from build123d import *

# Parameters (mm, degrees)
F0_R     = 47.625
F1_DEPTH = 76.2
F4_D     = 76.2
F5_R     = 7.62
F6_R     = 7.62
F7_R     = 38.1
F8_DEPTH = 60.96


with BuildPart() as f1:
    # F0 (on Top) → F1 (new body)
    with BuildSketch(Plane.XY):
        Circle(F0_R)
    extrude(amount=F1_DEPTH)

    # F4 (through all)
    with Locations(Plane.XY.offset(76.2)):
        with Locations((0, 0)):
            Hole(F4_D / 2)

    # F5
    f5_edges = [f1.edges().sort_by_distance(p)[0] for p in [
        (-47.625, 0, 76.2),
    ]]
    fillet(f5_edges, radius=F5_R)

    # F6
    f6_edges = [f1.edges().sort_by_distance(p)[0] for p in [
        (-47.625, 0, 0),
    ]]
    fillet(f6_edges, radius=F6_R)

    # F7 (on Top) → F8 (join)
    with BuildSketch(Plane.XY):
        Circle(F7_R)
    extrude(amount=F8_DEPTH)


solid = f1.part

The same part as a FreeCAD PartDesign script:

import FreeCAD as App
import Part
import Sketcher
Q = App.Units.Quantity


def edges_at(feature, points):
    """Names of the edges that pass closest to the given points."""
    edges = feature.Shape.Edges
    near = lambda p: min(range(len(edges)), key=lambda i: edges[i].distToShape(Part.Vertex(*p))[0])
    return sorted({f"Edge{near(p) + 1}" for p in points})

doc = App.newDocument("Part")
body = doc.addObject("PartDesign::Body", "Body")

# Sketch on XY plane
sketch1 = body.newObject("Sketcher::SketchObject", "Sketch")
sketch1.AttachmentSupport = (doc.getObject("XY_Plane"), [""])
sketch1.MapMode = "FlatFace"
sketch1.addGeometry(Part.Circle(App.Vector(0, 0, 0), App.Vector(0, 0, 1), 47.625), False)
sketch1.addConstraint([
    Sketcher.Constraint("Coincident", 0, 3, -1, 1),
    Sketcher.Constraint("Diameter", 0, Q("3.75 in")),
])
pad1 = body.newObject("PartDesign::Pad", "Pad")
pad1.Profile = sketch1
pad1.Length = Q("3 in")

# Sketch on XY plane
sketch2 = body.newObject("Sketcher::SketchObject", "Sketch001")
sketch2.AttachmentSupport = (doc.getObject("XY_Plane"), [""])
sketch2.MapMode = "FlatFace"
sketch2.AttachmentOffset = App.Placement(App.Vector(0, 0, 3 * 25.4), App.Rotation())
sketch2.addGeometry(Part.Circle(App.Vector(0, 0, 0), App.Vector(0, 0, 1), 38.1), False)
sketch2.addConstraint([
    Sketcher.Constraint("Coincident", 0, 3, -1, 1),
    Sketcher.Constraint("Diameter", 0, Q("3 in")),
])
doc.recompute()
hole = body.newObject("PartDesign::Hole", "Hole")
hole.Profile = sketch2
hole.ThreadType = "None"
hole.Diameter = Q("3 in")
hole.DepthType = "ThroughAll"
doc.recompute()

fillet = body.newObject("PartDesign::Fillet", "Fillet")
fillet.Base = (hole, edges_at(hole, [(-47.625, 0, 76.2)]))
fillet.Radius = Q("0.3 in")
doc.recompute()

fillet2 = body.newObject("PartDesign::Fillet", "Fillet001")
fillet2.Base = (fillet, edges_at(fillet, [(-47.625, 0, 0)]))
fillet2.Radius = Q("0.3 in")

# Sketch on XY plane
sketch3 = body.newObject("Sketcher::SketchObject", "Sketch002")
sketch3.AttachmentSupport = (doc.getObject("XY_Plane"), [""])
sketch3.MapMode = "FlatFace"
sketch3.addGeometry(Part.Circle(App.Vector(0, 0, 0), App.Vector(0, 0, 1), 38.1), False)
sketch3.addConstraint([
    Sketcher.Constraint("Coincident", 0, 3, -1, 1),
    Sketcher.Constraint("Diameter", 0, Q("3 in")),
])
pad2 = body.newObject("PartDesign::Pad", "Pad001")
pad2.Profile = sketch3
pad2.Length = Q("2.4 in")

doc.recompute()
